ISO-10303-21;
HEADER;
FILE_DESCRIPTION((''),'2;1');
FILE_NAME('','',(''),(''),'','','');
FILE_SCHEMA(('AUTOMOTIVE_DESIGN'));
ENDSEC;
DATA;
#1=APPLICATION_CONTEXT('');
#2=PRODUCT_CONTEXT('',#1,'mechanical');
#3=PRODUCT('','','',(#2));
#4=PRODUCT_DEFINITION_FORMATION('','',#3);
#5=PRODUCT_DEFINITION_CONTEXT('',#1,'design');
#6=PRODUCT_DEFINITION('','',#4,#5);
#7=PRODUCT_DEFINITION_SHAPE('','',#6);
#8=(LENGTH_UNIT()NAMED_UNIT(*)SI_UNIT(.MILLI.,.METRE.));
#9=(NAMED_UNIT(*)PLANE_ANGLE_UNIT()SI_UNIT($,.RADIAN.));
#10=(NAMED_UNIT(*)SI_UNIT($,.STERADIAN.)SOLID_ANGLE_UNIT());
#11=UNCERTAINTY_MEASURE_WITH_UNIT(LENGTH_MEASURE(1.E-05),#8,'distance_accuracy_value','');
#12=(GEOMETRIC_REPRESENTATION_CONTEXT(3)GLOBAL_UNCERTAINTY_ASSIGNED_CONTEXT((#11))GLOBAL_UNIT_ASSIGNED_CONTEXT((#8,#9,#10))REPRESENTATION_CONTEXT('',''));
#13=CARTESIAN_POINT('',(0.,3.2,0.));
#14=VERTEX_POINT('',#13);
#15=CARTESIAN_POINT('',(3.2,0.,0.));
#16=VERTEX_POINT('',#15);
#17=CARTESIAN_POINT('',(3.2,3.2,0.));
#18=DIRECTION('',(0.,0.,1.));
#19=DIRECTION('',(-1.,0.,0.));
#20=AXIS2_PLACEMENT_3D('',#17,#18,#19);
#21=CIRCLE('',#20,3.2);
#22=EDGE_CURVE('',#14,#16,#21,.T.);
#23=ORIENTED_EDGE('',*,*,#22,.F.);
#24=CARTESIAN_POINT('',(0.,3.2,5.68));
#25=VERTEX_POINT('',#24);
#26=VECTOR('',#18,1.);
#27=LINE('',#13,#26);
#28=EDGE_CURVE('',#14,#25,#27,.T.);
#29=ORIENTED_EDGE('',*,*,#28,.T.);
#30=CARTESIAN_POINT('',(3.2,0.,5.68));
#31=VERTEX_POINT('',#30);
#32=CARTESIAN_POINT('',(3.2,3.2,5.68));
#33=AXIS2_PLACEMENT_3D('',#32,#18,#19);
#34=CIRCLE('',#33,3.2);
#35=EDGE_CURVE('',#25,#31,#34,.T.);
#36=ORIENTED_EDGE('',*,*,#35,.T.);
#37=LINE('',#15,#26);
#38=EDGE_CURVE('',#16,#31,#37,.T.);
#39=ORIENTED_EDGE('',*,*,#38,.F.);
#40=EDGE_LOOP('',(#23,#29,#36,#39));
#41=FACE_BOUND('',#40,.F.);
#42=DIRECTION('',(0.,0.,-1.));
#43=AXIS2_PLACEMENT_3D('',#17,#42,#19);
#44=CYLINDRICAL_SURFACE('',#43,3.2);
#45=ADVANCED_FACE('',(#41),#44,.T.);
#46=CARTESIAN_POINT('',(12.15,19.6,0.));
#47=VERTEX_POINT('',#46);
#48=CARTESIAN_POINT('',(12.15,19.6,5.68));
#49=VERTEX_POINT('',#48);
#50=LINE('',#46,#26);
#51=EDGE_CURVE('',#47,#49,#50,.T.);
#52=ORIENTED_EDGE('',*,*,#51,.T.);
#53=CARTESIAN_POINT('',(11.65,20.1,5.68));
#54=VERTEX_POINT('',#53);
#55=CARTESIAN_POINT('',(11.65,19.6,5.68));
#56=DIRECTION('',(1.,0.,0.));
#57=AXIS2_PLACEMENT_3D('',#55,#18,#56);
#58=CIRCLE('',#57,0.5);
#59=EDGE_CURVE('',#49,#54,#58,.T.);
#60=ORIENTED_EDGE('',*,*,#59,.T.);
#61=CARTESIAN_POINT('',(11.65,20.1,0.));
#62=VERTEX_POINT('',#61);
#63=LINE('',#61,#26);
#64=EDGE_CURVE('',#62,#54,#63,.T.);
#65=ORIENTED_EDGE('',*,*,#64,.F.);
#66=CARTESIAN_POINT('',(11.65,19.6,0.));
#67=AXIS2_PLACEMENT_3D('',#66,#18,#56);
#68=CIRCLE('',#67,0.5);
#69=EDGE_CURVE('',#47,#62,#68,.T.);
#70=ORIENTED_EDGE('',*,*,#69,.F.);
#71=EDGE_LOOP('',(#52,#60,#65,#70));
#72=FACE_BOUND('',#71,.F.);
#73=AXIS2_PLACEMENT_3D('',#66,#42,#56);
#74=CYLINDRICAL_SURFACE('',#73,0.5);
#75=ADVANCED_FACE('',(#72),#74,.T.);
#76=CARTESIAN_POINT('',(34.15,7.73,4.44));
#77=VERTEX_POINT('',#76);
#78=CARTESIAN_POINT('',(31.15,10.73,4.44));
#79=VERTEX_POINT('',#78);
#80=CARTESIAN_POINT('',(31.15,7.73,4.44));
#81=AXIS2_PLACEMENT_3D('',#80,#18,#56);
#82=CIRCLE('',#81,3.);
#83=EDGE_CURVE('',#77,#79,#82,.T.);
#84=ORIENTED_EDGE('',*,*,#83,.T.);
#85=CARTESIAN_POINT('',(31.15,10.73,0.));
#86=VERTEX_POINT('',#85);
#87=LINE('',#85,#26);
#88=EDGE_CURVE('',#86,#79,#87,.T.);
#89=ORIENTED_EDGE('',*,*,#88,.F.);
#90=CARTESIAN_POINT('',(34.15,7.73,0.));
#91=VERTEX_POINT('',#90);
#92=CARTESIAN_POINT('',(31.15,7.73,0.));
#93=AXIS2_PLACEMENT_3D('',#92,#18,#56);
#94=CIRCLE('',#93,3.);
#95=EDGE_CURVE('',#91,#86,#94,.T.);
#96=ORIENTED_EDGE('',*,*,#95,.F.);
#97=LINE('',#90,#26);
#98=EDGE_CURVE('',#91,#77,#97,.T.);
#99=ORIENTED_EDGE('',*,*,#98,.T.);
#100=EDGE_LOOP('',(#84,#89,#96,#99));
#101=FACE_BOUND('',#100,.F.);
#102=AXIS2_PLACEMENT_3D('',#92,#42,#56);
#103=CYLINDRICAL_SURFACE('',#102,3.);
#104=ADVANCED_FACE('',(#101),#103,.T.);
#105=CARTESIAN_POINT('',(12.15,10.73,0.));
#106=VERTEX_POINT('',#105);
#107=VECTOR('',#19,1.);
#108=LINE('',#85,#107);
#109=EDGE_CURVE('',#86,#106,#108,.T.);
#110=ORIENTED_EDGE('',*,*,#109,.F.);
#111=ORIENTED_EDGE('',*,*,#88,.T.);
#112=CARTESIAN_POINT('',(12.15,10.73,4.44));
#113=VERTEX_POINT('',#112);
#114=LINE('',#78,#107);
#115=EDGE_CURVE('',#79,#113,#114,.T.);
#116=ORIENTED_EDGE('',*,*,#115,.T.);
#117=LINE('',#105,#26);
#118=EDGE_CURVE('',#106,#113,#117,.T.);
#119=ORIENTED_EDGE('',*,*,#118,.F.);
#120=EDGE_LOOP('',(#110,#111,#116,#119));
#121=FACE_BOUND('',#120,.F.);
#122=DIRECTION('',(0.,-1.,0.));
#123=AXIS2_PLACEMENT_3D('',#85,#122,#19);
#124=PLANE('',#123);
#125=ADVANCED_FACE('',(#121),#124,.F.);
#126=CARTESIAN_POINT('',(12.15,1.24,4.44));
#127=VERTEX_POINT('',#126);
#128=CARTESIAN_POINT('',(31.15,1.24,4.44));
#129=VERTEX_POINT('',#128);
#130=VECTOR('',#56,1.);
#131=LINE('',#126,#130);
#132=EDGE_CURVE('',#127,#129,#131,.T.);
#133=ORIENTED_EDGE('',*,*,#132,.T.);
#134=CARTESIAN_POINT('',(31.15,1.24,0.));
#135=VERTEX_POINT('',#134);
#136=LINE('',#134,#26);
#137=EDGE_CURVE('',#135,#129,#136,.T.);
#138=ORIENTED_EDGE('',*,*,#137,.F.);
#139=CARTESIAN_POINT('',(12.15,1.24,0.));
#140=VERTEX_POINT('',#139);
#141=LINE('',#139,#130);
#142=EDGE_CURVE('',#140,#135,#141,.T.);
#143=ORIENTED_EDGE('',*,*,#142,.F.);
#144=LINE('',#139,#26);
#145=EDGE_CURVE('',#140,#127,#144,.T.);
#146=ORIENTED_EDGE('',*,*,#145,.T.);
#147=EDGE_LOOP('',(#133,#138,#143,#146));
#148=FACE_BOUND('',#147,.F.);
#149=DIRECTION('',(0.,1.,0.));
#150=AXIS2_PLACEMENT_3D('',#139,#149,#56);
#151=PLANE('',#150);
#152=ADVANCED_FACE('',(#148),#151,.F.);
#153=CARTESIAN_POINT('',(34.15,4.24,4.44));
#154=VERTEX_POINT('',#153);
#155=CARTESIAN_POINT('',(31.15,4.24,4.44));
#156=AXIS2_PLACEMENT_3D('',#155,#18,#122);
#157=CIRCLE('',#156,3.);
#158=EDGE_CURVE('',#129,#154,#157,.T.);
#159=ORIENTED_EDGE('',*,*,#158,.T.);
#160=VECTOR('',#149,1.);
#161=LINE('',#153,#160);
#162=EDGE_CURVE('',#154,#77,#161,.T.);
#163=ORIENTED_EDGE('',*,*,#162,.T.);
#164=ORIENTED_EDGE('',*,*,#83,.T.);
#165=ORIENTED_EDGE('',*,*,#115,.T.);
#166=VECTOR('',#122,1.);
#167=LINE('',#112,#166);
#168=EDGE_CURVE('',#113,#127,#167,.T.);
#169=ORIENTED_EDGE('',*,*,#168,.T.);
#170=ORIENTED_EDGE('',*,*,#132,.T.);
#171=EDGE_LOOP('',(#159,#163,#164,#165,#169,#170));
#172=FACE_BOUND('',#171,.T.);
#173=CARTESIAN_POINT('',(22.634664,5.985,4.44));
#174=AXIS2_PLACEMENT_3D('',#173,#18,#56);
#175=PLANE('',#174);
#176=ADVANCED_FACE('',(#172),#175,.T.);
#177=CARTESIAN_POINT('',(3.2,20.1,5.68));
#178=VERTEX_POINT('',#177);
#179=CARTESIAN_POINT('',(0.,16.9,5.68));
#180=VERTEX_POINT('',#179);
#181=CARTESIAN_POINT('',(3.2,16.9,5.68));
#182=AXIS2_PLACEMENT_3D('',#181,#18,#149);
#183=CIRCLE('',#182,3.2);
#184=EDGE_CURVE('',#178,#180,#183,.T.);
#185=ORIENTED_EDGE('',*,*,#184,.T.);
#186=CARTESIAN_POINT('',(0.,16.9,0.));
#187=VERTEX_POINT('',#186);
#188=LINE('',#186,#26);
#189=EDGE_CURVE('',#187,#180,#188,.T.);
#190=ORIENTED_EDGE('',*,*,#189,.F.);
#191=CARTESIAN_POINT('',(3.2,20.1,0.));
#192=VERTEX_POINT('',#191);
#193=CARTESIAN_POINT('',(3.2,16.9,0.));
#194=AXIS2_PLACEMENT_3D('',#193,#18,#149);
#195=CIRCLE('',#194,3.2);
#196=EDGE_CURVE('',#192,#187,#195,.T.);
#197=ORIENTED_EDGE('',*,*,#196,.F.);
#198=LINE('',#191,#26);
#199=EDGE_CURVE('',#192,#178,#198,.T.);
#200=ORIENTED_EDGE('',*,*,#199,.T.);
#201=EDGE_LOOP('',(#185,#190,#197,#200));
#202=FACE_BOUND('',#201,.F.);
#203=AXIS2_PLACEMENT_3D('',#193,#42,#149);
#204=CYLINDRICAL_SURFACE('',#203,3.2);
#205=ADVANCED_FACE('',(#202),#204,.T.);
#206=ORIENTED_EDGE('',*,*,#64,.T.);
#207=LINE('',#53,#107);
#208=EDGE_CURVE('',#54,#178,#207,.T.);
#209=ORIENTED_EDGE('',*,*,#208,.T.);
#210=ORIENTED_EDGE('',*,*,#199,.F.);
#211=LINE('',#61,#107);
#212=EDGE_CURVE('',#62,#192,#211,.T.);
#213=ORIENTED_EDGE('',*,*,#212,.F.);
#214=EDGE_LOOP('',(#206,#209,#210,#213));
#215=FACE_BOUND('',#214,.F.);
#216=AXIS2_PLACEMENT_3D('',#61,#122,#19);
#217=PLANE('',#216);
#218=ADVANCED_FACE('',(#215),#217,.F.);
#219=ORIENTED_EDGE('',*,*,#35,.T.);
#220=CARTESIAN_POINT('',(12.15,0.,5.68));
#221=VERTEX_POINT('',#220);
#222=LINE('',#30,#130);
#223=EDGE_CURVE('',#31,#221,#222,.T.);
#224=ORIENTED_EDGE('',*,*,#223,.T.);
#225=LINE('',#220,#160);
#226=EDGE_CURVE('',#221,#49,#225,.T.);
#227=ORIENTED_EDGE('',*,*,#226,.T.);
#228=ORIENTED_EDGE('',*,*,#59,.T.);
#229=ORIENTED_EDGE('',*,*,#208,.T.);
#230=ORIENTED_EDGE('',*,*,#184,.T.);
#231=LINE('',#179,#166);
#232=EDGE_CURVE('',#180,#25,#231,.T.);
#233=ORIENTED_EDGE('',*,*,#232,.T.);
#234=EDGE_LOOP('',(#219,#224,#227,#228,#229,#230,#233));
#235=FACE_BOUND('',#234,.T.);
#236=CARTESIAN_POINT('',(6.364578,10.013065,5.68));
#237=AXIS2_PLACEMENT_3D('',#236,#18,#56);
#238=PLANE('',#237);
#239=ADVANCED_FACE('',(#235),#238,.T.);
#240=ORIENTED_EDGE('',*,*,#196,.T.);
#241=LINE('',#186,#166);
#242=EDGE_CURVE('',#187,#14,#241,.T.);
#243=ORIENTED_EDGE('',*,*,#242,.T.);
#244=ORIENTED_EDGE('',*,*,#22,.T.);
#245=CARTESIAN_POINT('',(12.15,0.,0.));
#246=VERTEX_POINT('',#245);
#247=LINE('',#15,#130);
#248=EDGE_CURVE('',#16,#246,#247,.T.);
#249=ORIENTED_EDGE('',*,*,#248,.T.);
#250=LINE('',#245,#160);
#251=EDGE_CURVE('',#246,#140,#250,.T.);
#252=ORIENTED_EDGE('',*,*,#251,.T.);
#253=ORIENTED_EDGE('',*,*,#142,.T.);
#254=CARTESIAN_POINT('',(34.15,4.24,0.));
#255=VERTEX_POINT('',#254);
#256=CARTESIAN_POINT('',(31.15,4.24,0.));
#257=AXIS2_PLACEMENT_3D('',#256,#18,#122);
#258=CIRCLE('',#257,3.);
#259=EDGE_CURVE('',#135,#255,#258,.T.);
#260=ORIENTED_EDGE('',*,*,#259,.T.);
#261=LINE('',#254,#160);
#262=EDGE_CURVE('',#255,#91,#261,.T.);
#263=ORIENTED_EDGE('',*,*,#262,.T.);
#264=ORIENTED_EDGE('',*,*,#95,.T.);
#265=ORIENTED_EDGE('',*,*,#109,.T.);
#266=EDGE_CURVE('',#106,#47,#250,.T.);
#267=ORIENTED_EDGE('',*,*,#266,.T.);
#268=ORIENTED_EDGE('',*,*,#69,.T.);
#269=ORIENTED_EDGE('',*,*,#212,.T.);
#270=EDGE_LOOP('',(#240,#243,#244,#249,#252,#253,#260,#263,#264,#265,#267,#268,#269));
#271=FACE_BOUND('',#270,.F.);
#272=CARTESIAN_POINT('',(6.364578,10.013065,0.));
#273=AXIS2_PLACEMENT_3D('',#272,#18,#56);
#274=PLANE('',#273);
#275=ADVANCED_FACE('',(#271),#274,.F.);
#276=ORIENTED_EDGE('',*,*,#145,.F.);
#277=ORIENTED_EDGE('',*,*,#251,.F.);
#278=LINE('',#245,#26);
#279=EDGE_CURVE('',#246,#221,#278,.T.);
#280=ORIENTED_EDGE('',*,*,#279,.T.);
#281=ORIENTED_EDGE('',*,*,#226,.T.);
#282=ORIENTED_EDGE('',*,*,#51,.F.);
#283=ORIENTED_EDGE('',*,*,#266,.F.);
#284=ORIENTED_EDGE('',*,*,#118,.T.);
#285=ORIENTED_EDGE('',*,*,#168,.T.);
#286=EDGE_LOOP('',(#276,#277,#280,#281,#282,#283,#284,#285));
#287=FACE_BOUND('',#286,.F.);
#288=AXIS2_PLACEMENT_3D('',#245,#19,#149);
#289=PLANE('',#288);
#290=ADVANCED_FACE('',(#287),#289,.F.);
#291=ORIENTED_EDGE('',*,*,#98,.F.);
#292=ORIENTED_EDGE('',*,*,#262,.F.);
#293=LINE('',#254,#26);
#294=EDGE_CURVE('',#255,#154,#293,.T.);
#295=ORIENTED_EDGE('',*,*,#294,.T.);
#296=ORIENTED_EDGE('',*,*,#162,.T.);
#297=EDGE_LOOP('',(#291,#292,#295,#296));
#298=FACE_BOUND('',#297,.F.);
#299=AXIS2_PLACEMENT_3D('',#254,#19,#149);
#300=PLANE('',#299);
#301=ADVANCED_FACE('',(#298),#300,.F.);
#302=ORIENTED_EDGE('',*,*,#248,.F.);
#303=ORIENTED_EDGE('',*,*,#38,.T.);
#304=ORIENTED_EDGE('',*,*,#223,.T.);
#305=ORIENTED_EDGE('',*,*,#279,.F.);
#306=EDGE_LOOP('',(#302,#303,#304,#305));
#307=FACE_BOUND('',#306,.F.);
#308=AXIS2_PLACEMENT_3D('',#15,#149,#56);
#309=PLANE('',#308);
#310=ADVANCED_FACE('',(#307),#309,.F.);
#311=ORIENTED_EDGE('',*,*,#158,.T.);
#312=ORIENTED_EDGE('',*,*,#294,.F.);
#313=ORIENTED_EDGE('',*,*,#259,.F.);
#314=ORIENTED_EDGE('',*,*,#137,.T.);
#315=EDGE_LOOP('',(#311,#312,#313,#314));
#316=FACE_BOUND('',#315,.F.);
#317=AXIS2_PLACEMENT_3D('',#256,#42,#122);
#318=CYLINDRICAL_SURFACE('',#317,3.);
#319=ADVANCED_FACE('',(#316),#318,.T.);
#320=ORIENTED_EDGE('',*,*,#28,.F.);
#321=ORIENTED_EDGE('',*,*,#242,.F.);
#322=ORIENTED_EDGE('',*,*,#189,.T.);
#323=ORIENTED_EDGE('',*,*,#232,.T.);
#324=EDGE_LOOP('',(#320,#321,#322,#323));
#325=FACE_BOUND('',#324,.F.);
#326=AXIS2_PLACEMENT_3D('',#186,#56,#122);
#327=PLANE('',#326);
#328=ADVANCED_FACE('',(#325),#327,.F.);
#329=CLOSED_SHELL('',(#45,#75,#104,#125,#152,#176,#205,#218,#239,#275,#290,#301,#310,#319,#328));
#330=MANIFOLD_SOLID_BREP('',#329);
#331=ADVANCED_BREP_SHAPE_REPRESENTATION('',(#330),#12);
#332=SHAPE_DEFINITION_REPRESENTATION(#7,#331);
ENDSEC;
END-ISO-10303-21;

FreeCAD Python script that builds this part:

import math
import FreeCAD as App
import Part
import Sketcher
Q = App.Units.Quantity

doc = App.newDocument("Part")
body = doc.addObject("PartDesign::Body", "Body")

# Sketch on XY plane
sketch1 = body.newObject("Sketcher::SketchObject", "Sketch")
sketch1.AttachmentSupport = (doc.getObject("XY_Plane"), [""])
sketch1.MapMode = "FlatFace"
sketch1.addGeometry(Part.ArcOfCircle(Part.Circle(App.Vector(3.2, 3.2, 0), App.Vector(0, 0, 1), 3.2), math.radians(180), math.radians(270)), False)
sketch1.addGeometry(Part.LineSegment(App.Vector(3.2, 0, 0), App.Vector(12.2, 0, 0)), False)
sketch1.addGeometry(Part.LineSegment(App.Vector(12.2, 0, 0), App.Vector(12.2, 19.6, 0)), False)
sketch1.addGeometry(Part.ArcOfCircle(Part.Circle(App.Vector(11.7, 19.6, 0), App.Vector(0, 0, 1), 0.5), math.radians(0), math.radians(90)), False)
sketch1.addGeometry(Part.LineSegment(App.Vector(11.7, 20.1, 0), App.Vector(3.2, 20.1, 0)), False)
sketch1.addGeometry(Part.ArcOfCircle(Part.Circle(App.Vector(3.2, 16.9, 0), App.Vector(0, 0, 1), 3.2), math.radians(90), math.radians(180)), False)
sketch1.addGeometry(Part.LineSegment(App.Vector(0, 16.9, 0), App.Vector(0, 3.2, 0)), False)
sketch1.addConstraint(Sketcher.Constraint("Tangent", 0, 2, 1, 1))
sketch1.addConstraint(Sketcher.Constraint("Coincident", 1, 2, 2, 1))
sketch1.addConstraint(Sketcher.Constraint("Tangent", 2, 2, 3, 1))
sketch1.addConstraint(Sketcher.Constraint("Tangent", 3, 2, 4, 1))
sketch1.addConstraint(Sketcher.Constraint("Tangent", 4, 2, 5, 1))
sketch1.addConstraint(Sketcher.Constraint("Tangent", 5, 2, 6, 1))
sketch1.addConstraint(Sketcher.Constraint("Tangent", 6, 2, 0, 1))
sketch1.addConstraint(Sketcher.Constraint("Horizontal", 1))
sketch1.addConstraint(Sketcher.Constraint("Vertical", 2))
sketch1.addConstraint(Sketcher.Constraint("Horizontal", 4))
sketch1.addConstraint(Sketcher.Constraint("Vertical", 6))
sketch1.addConstraint(Sketcher.Constraint("Equal", 0, 5))
sketch1.addConstraint(Sketcher.Constraint("PointOnObject", 0, 2, -1))
sketch1.addConstraint(Sketcher.Constraint("PointOnObject", 5, 2, -2))
sketch1.addConstraint(Sketcher.Constraint("Radius", 0, Q("3.2 mm")))
sketch1.addConstraint(Sketcher.Constraint("Radius", 3, Q("0.5 mm")))
sketch1.addConstraint(Sketcher.Constraint("DistanceY", 2, 1, 2, 2, Q("19.6 mm")))
sketch1.addConstraint(Sketcher.Constraint("DistanceX", 1, 1, 1, 2, Q("8.95 mm")))
pad1 = body.newObject("PartDesign::Pad", "Pad")
pad1.Profile = sketch1
pad1.Length = 5.68

# Sketch on XY plane
sketch2 = body.newObject("Sketcher::SketchObject", "Sketch001")
sketch2.AttachmentSupport = (doc.getObject("XY_Plane"), [""])
sketch2.MapMode = "FlatFace"
sketch2.addGeometry(Part.LineSegment(App.Vector(12.2, 10.7, 0), App.Vector(12.2, 1.2, 0)), False)
sketch2.addGeometry(Part.LineSegment(App.Vector(12.2, 1.2, 0), App.Vector(31.1, 1.2, 0)), False)
sketch2.addGeometry(Part.ArcOfCircle(Part.Circle(App.Vector(31.1, 4.2, 0), App.Vector(0, 0, 1), 3), math.radians(-90), math.radians(0)), False)
sketch2.addGeometry(Part.LineSegment(App.Vector(34.1, 4.2, 0), App.Vector(34.1, 7.7, 0)), False)
sketch2.addGeometry(Part.ArcOfCircle(Part.Circle(App.Vector(31.1, 7.7, 0), App.Vector(0, 0, 1), 3), math.radians(0), math.radians(90)), False)
sketch2.addGeometry(Part.LineSegment(App.Vector(31.1, 10.7, 0), App.Vector(12.2, 10.7, 0)), False)
sketch2.addConstraint(Sketcher.Constraint("Coincident", 0, 2, 1, 1))
sketch2.addConstraint(Sketcher.Constraint("Tangent", 1, 2, 2, 1))
sketch2.addConstraint(Sketcher.Constraint("Tangent", 2, 2, 3, 1))
sketch2.addConstraint(Sketcher.Constraint("Tangent", 3, 2, 4, 1))
sketch2.addConstraint(Sketcher.Constraint("Tangent", 4, 2, 5, 1))
sketch2.addConstraint(Sketcher.Constraint("Coincident", 5, 2, 0, 1))
sketch2.addConstraint(Sketcher.Constraint("Vertical", 0))
sketch2.addConstraint(Sketcher.Constraint("Horizontal", 1))
sketch2.addConstraint(Sketcher.Constraint("Vertical", 3))
sketch2.addConstraint(Sketcher.Constraint("Horizontal", 5))
sketch2.addConstraint(Sketcher.Constraint("Equal", 2, 4))
sketch2.addConstraint(Sketcher.Constraint("Radius", 2, Q("3 mm")))
sketch2.addConstraint(Sketcher.Constraint("DistanceX", 1, 1, 1, 2, Q("19 mm")))
sketch2.addConstraint(Sketcher.Constraint("DistanceY", 0, 2, 0, 1, Q("9.49 mm")))
sketch2.addConstraint(Sketcher.Constraint("DistanceX", -1, 1, 2, 3, Q("31.15 mm")))
sketch2.addConstraint(Sketcher.Constraint("DistanceY", -1, 1, 2, 3, Q("4.24 mm")))
pad2 = body.newObject("PartDesign::Pad", "Pad001")
pad2.Profile = sketch2
pad2.Length = 4.44

doc.recompute()
